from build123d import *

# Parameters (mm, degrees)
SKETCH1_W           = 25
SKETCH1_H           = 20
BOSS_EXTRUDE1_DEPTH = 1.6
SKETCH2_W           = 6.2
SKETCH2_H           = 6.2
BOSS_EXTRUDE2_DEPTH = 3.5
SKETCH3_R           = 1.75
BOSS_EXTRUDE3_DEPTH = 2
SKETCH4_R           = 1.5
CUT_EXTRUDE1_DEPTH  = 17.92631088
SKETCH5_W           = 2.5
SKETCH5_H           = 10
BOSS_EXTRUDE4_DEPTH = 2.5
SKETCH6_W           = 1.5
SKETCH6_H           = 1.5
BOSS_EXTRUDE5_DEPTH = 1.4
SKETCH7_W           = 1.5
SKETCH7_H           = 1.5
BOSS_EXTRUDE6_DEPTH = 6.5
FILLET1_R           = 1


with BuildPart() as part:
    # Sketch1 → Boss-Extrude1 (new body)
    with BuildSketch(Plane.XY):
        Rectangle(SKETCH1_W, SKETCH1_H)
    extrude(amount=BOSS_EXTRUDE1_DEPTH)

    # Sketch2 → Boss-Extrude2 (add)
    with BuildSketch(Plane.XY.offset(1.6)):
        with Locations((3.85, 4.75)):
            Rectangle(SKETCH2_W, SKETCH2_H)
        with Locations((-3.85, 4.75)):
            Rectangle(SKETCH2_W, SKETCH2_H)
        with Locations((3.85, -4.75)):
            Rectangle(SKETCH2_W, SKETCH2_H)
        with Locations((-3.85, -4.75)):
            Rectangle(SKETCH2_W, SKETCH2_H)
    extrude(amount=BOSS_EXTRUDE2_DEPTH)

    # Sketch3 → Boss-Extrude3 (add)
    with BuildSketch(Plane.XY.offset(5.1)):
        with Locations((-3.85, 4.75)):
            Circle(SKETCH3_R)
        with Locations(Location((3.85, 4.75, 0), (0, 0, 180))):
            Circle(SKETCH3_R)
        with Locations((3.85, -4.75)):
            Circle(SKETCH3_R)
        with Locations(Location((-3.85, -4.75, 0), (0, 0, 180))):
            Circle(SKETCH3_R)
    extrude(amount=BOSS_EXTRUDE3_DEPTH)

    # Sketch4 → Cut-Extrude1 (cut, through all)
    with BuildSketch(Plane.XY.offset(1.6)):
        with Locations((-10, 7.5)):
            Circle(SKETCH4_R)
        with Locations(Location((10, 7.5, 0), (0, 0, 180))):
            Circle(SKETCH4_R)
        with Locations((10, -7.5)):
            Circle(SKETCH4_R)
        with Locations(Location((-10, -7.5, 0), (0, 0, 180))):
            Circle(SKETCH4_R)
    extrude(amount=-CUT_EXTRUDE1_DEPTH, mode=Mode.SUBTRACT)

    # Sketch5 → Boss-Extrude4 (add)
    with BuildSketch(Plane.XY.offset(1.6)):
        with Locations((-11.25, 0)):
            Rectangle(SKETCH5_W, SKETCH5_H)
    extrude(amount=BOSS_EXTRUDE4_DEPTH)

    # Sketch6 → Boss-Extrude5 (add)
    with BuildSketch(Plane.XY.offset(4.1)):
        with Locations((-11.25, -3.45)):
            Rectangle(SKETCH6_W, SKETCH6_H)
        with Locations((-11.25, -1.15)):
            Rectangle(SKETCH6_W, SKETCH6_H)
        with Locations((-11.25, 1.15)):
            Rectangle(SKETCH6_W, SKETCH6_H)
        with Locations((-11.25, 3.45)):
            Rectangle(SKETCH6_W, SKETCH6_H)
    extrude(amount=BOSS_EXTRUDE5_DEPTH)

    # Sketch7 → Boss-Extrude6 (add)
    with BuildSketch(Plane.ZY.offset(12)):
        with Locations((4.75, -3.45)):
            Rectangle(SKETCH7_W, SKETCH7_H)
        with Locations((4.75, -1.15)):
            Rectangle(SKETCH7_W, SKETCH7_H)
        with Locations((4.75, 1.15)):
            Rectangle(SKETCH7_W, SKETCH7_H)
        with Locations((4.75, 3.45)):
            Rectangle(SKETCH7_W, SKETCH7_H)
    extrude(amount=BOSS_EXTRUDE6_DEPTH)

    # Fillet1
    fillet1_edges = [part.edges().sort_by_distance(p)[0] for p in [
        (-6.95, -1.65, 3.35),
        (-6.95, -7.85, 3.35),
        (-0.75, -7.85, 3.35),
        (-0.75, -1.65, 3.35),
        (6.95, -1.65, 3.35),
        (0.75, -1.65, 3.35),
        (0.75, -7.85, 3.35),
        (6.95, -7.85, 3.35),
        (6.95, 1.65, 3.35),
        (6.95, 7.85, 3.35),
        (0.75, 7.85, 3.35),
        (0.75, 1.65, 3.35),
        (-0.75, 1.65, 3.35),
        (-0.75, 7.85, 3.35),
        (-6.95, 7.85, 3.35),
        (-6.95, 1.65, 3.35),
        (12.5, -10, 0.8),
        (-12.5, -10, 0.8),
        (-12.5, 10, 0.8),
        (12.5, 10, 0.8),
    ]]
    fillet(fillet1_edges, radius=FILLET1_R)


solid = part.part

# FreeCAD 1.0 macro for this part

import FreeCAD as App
import Part
import Sketcher


def edges_at(feature, points):
    """Names of the edges that pass closest to the given points."""
    edges = feature.Shape.Edges
    near = lambda p: min(range(len(edges)), key=lambda i: edges[i].distToShape(Part.Vertex(*p))[0])
    return sorted({f"Edge{near(p) + 1}" for p in points})


def add_polygon(sketch, points):
    """Adds a closed chain of lines whose ends are joined by coincident constraints."""
    first, n = sketch.GeometryCount, len(points)
    for a, b in zip(points, points[1:] + points[:1]):
        sketch.addGeometry(Part.LineSegment(App.Vector(*a, 0), App.Vector(*b, 0)), False)
    for i in range(n):
        sketch.addConstraint(Sketcher.Constraint("Coincident", first + i, 2, first + (i + 1) % n, 1))

doc = App.newDocument("Part")
body = doc.addObject("PartDesign::Body", "Body")

sketch1 = body.newObject("Sketcher::SketchObject", "Sketch")
sketch1.AttachmentSupport = (doc.getObject("XY_Plane"), [""])
sketch1.MapMode = "FlatFace"
add_polygon(sketch1, [(-12, 10), (-12, -10), (12, -10), (12, 10)])
sketch1.addConstraint([
    Sketcher.Constraint("Vertical", 0),
    Sketcher.Constraint("Horizontal", 1),
    Sketcher.Constraint("Vertical", 2),
    Sketcher.Constraint("Horizontal", 3),
    Sketcher.Constraint("Symmetric", 0, 2, 2, 2, -1, 1),
    Sketcher.Constraint("DistanceX", 1, 1, 1, 2, 25.0),
    Sketcher.Constraint("DistanceY", 0, 2, 0, 1, 20.0),
])
pad1 = body.newObject("PartDesign::Pad", "Pad")
pad1.Profile = sketch1
pad1.Length = 1.6

sketch2 = body.newObject("Sketcher::SketchObject", "Sketch001")
sketch2.AttachmentSupport = (doc.getObject("XY_Plane"), [""])
sketch2.MapMode = "FlatFace"
sketch2.AttachmentOffset = App.Placement(App.Vector(0, 0, 1.6), App.Rotation())
add_polygon(sketch2, [(1, 8), (1, 2), (7, 2), (7, 8)])
add_polygon(sketch2, [(-7, 8), (-7, 2), (-1, 2), (-1, 8)])
add_polygon(sketch2, [(1, -2), (1, -8), (7, -8), (7, -2)])
add_polygon(sketch2, [(-7, -2), (-7, -8), (-1, -8), (-1, -2)])
sketch2.addConstraint([
    Sketcher.Constraint("Vertical", 0),
    Sketcher.Constraint("Horizontal", 1),
    Sketcher.Constraint("Vertical", 2),
    Sketcher.Constraint("Horizontal", 3),
    Sketcher.Constraint("Vertical", 4),
    Sketcher.Constraint("Horizontal", 5),
    Sketcher.Constraint("Vertical", 6),
    Sketcher.Constraint("Horizontal", 7),
    Sketcher.Constraint("Vertical", 8),
    Sketcher.Constraint("Horizontal", 9),
    Sketcher.Constraint("Vertical", 10),
    Sketcher.Constraint("Horizontal", 11),
    Sketcher.Constraint("Vertical", 12),
    Sketcher.Constraint("Horizontal", 13),
    Sketcher.Constraint("Vertical", 14),
    Sketcher.Constraint("Horizontal", 15),
    Sketcher.Constraint("Symmetric", 6, 2, 8, 2, -1, 1),
    Sketcher.Constraint("Symmetric", 4, 2, 10, 2, -1, 1),
    Sketcher.Constraint("Symmetric", 2, 2, 12, 2, -1, 1),
    Sketcher.Constraint("Symmetric", 0, 2, 14, 2, -1, 1),
    Sketcher.Constraint("Symmetric", 1, 2, 4, 2, -2),
    Sketcher.Constraint("Symmetric", 3, 2, 6, 2, -2),
    Sketcher.Constraint("Equal", 15, 0),
    Sketcher.Constraint("DistanceX", 1, 1, 1, 2, 6.2),
    Sketcher.Constraint("DistanceX", 4, 2, 0, 2, 7.7),
    Sketcher.Constraint("DistanceY", 8, 2, 0, 2, 9.5),
])
pad2 = body.newObject("PartDesign::Pad", "Pad001")
pad2.Profile = sketch2
pad2.Length = 3.5

sketch3 = body.newObject("Sketcher::SketchObject", "Sketch002")
sketch3.AttachmentSupport = (doc.getObject("XY_Plane"), [""])
sketch3.MapMode = "FlatFace"
sketch3.AttachmentOffset = App.Placement(App.Vector(0, 0, 5.1), App.Rotation())
sketch3.addGeometry([
    Part.Circle(App.Vector(-3.9, 4.8, 0), App.Vector(0, 0, 1), 1.8),
    Part.Circle(App.Vector(3.9, 4.8, 0), App.Vector(0, 0, 1), 1.8),
    Part.Circle(App.Vector(3.9, -4.8, 0), App.Vector(0, 0, 1), 1.8),
    Part.Circle(App.Vector(-3.9, -4.8, 0), App.Vector(0, 0, 1), 1.8),
], False)
sketch3.addConstraint([
    Sketcher.Constraint("Equal", 0, 1),
    Sketcher.Constraint("Equal", 1, 2),
    Sketcher.Constraint("Equal", 2, 3),
    Sketcher.Constraint("Symmetric", 0, 3, 2, 3, -1, 1),
    Sketcher.Constraint("Symmetric", 1, 3, 3, 3, -1, 1),
    Sketcher.Constraint("Symmetric", 0, 3, 1, 3, -2),
    Sketcher.Constraint("Diameter", 0, 3.5),
    Sketcher.Constraint("DistanceX", 0, 3, 1, 3, 7.7),
    Sketcher.Constraint("DistanceY", 2, 3, 1, 3, 9.5),
])
pad3 = body.newObject("PartDesign::Pad", "Pad002")
pad3.Profile = sketch3
pad3.Length = 2

sketch4 = body.newObject("Sketcher::SketchObject", "Sketch003")
sketch4.AttachmentSupport = (doc.getObject("XY_Plane"), [""])
sketch4.MapMode = "FlatFace"
sketch4.AttachmentOffset = App.Placement(App.Vector(0, 0, 1.6), App.Rotation())
sketch4.addGeometry([
    Part.Circle(App.Vector(-10, 7.5, 0), App.Vector(0, 0, 1), 1.5),
    Part.Circle(App.Vector(10, 7.5, 0), App.Vector(0, 0, 1), 1.5),
    Part.Circle(App.Vector(10, -7.5, 0), App.Vector(0, 0, 1), 1.5),
    Part.Circle(App.Vector(-10, -7.5, 0), App.Vector(0, 0, 1), 1.5),
], False)
sketch4.addConstraint([
    Sketcher.Constraint("Equal", 0, 1),
    Sketcher.Constraint("Equal", 1, 2),
    Sketcher.Constraint("Equal", 2, 3),
    Sketcher.Constraint("Symmetric", 0, 3, 2, 3, -1, 1),
    Sketcher.Constraint("Symmetric", 1, 3, 3, 3, -1, 1),
    Sketcher.Constraint("Symmetric", 0, 3, 1, 3, -2),
    Sketcher.Constraint("Diameter", 0, 3.0),
    Sketcher.Constraint("DistanceX", 0, 3, -1, 1, 10.0),
    Sketcher.Constraint("DistanceY", 2, 3, 1, 3, 15.0),
])
pocket1 = body.newObject("PartDesign::Pocket", "Pocket")
pocket1.Profile = sketch4
pocket1.Type = "ThroughAll"

sketch5 = body.newObject("Sketcher::SketchObject", "Sketch004")
sketch5.AttachmentSupport = (doc.getObject("XY_Plane"), [""])
sketch5.MapMode = "FlatFace"
sketch5.AttachmentOffset = App.Placement(App.Vector(0, 0, 1.6), App.Rotation())
add_polygon(sketch5, [(-12.5, 5), (-12.5, -5), (-10, -5), (-10, 5)])
sketch5.addConstraint([
    Sketcher.Constraint("Vertical", 0),
    Sketcher.Constraint("Horizontal", 1),
    Sketcher.Constraint("Vertical", 2),
    Sketcher.Constraint("Horizontal", 3),
    Sketcher.Constraint("DistanceY", 0, 2, 0, 1, 10.0),
    Sketcher.Constraint("DistanceX", 1, 1, 1, 2, 2.5),
    Sketcher.Constraint("DistanceY", 0, 2, -1, 1, 5.0),
    Sketcher.Constraint("DistanceX", 1, 2, -1, 1, 10.0),
])
pad4 = body.newObject("PartDesign::Pad", "Pad003")
pad4.Profile = sketch5
pad4.Length = 2.5

sketch6 = body.newObject("Sketcher::SketchObject", "Sketch005")
sketch6.AttachmentSupport = (doc.getObject("XY_Plane"), [""])
sketch6.MapMode = "FlatFace"
sketch6.AttachmentOffset = App.Placement(App.Vector(0, 0, 4.1), App.Rotation())
add_polygon(sketch6, [(-12, -2.7), (-12, -4.2), (-10.5, -4.2), (-10.5, -2.7)])
add_polygon(sketch6, [(-12, -0.4), (-12, -1.9), (-10.5, -1.9), (-10.5, -0.4)])
add_polygon(sketch6, [(-12, 1.9), (-12, 0.4), (-10.5, 0.4), (-10.5, 1.9)])
add_polygon(sketch6, [(-12, 4.2), (-12, 2.7), (-10.5, 2.7), (-10.5, 4.2)])
sketch6.addConstraint([
    Sketcher.Constraint("Vertical", 0),
    Sketcher.Constraint("Horizontal", 1),
    Sketcher.Constraint("Vertical", 2),
    Sketcher.Constraint("Horizontal", 3),
    Sketcher.Constraint("Vertical", 4),
    Sketcher.Constraint("Horizontal", 5),
    Sketcher.Constraint("Vertical", 6),
    Sketcher.Constraint("Horizontal", 7),
    Sketcher.Constraint("Vertical", 8),
    Sketcher.Constraint("Horizontal", 9),
    Sketcher.Constraint("Vertical", 10),
    Sketcher.Constraint("Horizontal", 11),
    Sketcher.Constraint("Vertical", 12),
    Sketcher.Constraint("Horizontal", 13),
    Sketcher.Constraint("Vertical", 14),
    Sketcher.Constraint("Horizontal", 15),
    Sketcher.Constraint("Symmetric", 7, 2, 8, 2, -1),
    Sketcher.Constraint("Symmetric", 5, 2, 10, 2, -1),
    Sketcher.Constraint("Symmetric", 3, 2, 12, 2, -1),
    Sketcher.Constraint("Symmetric", 1, 2, 14, 2, -1),
    Sketcher.Constraint("Vertical", 3, 2, 4, 2),
    Sketcher.Constraint("Vertical", 2, 2, 5, 2),
    Sketcher.Constraint("Equal", 15, 0),
    Sketcher.Constraint("Equal", 2, 4),
    Sketcher.Constraint("DistanceX", 1, 1, 1, 2, 1.5),
    Sketcher.Constraint("DistanceX", 0, 2, -1, 1, 12.0),
    Sketcher.Constraint("DistanceY", 0, 2, -1, 1, 4.2),
    Sketcher.Constraint("DistanceY", 4, 2, -1, 1, 1.9),
])
pad5 = body.newObject("PartDesign::Pad", "Pad004")
pad5.Profile = sketch6
pad5.Length = 1.4

sketch7 = body.newObject("Sketcher::SketchObject", "Sketch006")
sketch7.AttachmentSupport = (doc.getObject("YZ_Plane"), [""])
sketch7.MapMode = "FlatFace"
sketch7.AttachmentOffset = App.Placement(App.Vector(0, 0, -12), App.Rotation())
add_polygon(sketch7, [(-2.7, 4), (-4.2, 4), (-4.2, 5.5), (-2.7, 5.5)])
add_polygon(sketch7, [(-0.4, 4), (-1.9, 4), (-1.9, 5.5), (-0.4, 5.5)])
add_polygon(sketch7, [(1.9, 4), (0.4, 4), (0.4, 5.5), (1.9, 5.5)])
add_polygon(sketch7, [(4.2, 4), (2.7, 4), (2.7, 5.5), (4.2, 5.5)])
sketch7.addConstraint([
    Sketcher.Constraint("Horizontal", 0),
    Sketcher.Constraint("Vertical", 1),
    Sketcher.Constraint("Horizontal", 2),
    Sketcher.Constraint("Vertical", 3),
    Sketcher.Constraint("Horizontal", 4),
    Sketcher.Constraint("Vertical", 5),
    Sketcher.Constraint("Horizontal", 6),
    Sketcher.Constraint("Vertical", 7),
    Sketcher.Constraint("Horizontal", 8),
    Sketcher.Constraint("Vertical", 9),
    Sketcher.Constraint("Horizontal", 10),
    Sketcher.Constraint("Vertical", 11),
    Sketcher.Constraint("Horizontal", 12),
    Sketcher.Constraint("Vertical", 13),
    Sketcher.Constraint("Horizontal", 14),
    Sketcher.Constraint("Vertical", 15),
    Sketcher.Constraint("Symmetric", 7, 2, 8, 2, -2),
    Sketcher.Constraint("Symmetric", 5, 2, 10, 2, -2),
    Sketcher.Constraint("Symmetric", 3, 2, 12, 2, -2),
    Sketcher.Constraint("Symmetric", 1, 2, 14, 2, -2),
    Sketcher.Constraint("Horizontal", 3, 2, 4, 2),
    Sketcher.Constraint("Horizontal", 2, 2, 5, 2),
    Sketcher.Constraint("Equal", 2, 4),
    Sketcher.Constraint("Equal", 14, 1),
    Sketcher.Constraint("DistanceX", 0, 2, 0, 1, 1.5),
    Sketcher.Constraint("DistanceY", -1, 1, 0, 2, 4.0),
    Sketcher.Constraint("DistanceX", 0, 2, -1, 1, 4.2),
    Sketcher.Constraint("DistanceX", 4, 2, -1, 1, 1.9),
])
pad6 = body.newObject("PartDesign::Pad", "Pad005")
pad6.Profile = sketch7
pad6.Length = 6.5
pad6.Reversed = True
doc.recompute()

fillet = body.newObject("PartDesign::Fillet", "Fillet")
fillet.Base = (pad6, edges_at(pad6, [
    (-6.95, -1.65, 3.35),
    (-6.95, -7.85, 3.35),
    (-0.75, -7.85, 3.35),
    (-0.75, -1.65, 3.35),
    (6.95, -1.65, 3.35),
    (0.75, -1.65, 3.35),
    (0.75, -7.85, 3.35),
    (6.95, -7.85, 3.35),
    (6.95, 1.65, 3.35),
    (6.95, 7.85, 3.35),
    (0.75, 7.85, 3.35),
    (0.75, 1.65, 3.35),
    (-0.75, 1.65, 3.35),
    (-0.75, 7.85, 3.35),
    (-6.95, 7.85, 3.35),
    (-6.95, 1.65, 3.35),
    (12.5, -10, 0.8),
    (-12.5, -10, 0.8),
    (-12.5, 10, 0.8),
    (12.5, 10, 0.8),
]))
fillet.Radius = 1

doc.recompute()
